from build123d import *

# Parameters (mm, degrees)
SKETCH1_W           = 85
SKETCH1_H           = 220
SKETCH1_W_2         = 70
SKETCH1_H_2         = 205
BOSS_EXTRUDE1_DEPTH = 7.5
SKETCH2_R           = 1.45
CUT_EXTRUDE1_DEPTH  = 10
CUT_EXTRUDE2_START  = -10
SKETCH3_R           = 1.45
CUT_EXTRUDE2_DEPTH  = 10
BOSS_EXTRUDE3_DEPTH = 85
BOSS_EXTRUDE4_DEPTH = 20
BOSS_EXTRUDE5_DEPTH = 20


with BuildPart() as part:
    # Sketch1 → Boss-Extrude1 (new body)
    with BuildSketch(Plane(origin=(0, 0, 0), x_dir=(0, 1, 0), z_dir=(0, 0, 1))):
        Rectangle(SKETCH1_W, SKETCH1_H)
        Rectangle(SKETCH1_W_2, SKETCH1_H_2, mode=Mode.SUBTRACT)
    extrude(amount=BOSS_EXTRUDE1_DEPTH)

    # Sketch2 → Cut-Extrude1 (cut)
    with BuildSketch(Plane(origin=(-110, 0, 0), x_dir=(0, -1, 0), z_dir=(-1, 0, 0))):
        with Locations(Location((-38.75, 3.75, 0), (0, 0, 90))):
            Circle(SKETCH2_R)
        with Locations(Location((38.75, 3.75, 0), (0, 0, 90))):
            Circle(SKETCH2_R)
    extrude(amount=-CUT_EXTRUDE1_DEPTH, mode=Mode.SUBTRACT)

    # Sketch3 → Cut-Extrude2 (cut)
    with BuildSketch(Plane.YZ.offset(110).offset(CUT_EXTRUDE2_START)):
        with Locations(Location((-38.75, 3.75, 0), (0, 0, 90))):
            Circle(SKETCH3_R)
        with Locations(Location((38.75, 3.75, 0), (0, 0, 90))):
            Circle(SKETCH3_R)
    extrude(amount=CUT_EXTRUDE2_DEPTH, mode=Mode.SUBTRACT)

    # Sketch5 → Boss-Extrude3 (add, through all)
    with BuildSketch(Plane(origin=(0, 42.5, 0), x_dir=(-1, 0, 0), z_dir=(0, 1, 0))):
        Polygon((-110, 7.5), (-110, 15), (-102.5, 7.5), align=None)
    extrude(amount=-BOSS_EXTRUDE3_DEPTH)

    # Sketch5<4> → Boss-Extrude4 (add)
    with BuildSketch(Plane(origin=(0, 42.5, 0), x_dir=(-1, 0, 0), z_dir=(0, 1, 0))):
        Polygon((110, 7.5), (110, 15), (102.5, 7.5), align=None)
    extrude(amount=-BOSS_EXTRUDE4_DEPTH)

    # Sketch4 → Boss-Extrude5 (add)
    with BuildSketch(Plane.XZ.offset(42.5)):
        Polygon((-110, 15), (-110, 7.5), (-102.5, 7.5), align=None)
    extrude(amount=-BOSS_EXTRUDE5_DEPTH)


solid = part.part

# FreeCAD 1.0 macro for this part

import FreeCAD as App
import Part
import Sketcher

V = App.Vector
Q = App.Units.Quantity


def add_polygon(sketch, points):
    """Adds a closed chain of lines whose ends are joined by coincident constraints."""
    first, n = sketch.GeometryCount, len(points)
    for a, b in zip(points, points[1:] + points[:1]):
        sketch.addGeometry(Part.LineSegment(App.Vector(*a, 0), App.Vector(*b, 0)), False)
    for i in range(n):
        sketch.addConstraint(Sketcher.Constraint("Coincident", first + i, 2, first + (i + 1) % n, 1))

doc = App.newDocument("Part")
body = doc.addObject("PartDesign::Body", "Body")

# Sketch on XY plane
sketch1 = doc.addObject("Sketcher::SketchObject", "Sketch")
body.addObject(sketch1)
sketch1.AttachmentSupport = (doc.XY_Plane, [""])
sketch1.MapMode = "FlatFace"
add_polygon(sketch1, [(-110, -42), (110, -42), (110, 42), (-110, 42)])  # lines 0-3
add_polygon(sketch1, [(102, 35), (102, -35), (-102, -35), (-102, 35)])  # lines 4-7
sketch1.addConstraint(Sketcher.Constraint("Horizontal", 0))
sketch1.addConstraint(Sketcher.Constraint("Vertical", 1))
sketch1.addConstraint(Sketcher.Constraint("Horizontal", 2))
sketch1.addConstraint(Sketcher.Constraint("Vertical", 3))
sketch1.addConstraint(Sketcher.Constraint("Vertical", 4))
sketch1.addConstraint(Sketcher.Constraint("Horizontal", 5))
sketch1.addConstraint(Sketcher.Constraint("Vertical", 6))
sketch1.addConstraint(Sketcher.Constraint("Horizontal", 7))
sketch1.addConstraint(Sketcher.Constraint("Symmetric", 0, 2, 2, 2, -1, 1))
sketch1.addConstraint(Sketcher.Constraint("Symmetric", 4, 2, 6, 2, -1, 1))
sketch1.addConstraint(Sketcher.Constraint("DistanceX", 0, 1, 0, 2, Q("220 mm")))
sketch1.addConstraint(Sketcher.Constraint("DistanceX", 5, 2, 5, 1, Q("205 mm")))
sketch1.addConstraint(Sketcher.Constraint("DistanceY", 1, 1, 1, 2, Q("85 mm")))
sketch1.addConstraint(Sketcher.Constraint("DistanceY", 4, 2, 4, 1, Q("70 mm")))
pad1 = doc.addObject("PartDesign::Pad", "Pad")
body.addObject(pad1)
pad1.Profile = sketch1
pad1.Length = 7.5

# Sketch on YZ plane
sketch2 = doc.addObject("Sketcher::SketchObject", "Sketch001")
body.addObject(sketch2)
sketch2.AttachmentSupport = (doc.YZ_Plane, [""])
sketch2.MapMode = "FlatFace"
sketch2.AttachmentOffset = App.Placement(V(0, 0, -110), App.Rotation())
sketch2.addGeometry(Part.Circle(V(38.8, 3.8, 0), V(0, 0, 1), 1.4), False)
sketch2.addGeometry(Part.Circle(V(-38.8, 3.8, 0), V(0, 0, 1), 1.4), False)
sketch2.addConstraint(Sketcher.Constraint("Equal", 0, 1))
sketch2.addConstraint(Sketcher.Constraint("Symmetric", 0, 3, 1, 3, -2))
sketch2.addConstraint(Sketcher.Constraint("Diameter", 0, Q("2.9 mm")))
sketch2.addConstraint(Sketcher.Constraint("DistanceX", 1, 3, 0, 3, Q("77.5 mm")))
sketch2.addConstraint(Sketcher.Constraint("DistanceY", -1, 1, 0, 3, Q("3.75 mm")))
pocket1 = doc.addObject("PartDesign::Pocket", "Pocket")
body.addObject(pocket1)
pocket1.Profile = sketch2
pocket1.Length = 10
pocket1.Reversed = True

# Sketch on YZ plane
sketch3 = doc.addObject("Sketcher::SketchObject", "Sketch002")
body.addObject(sketch3)
sketch3.AttachmentSupport = (doc.YZ_Plane, [""])
sketch3.MapMode = "FlatFace"
sketch3.AttachmentOffset = App.Placement(V(0, 0, 100), App.Rotation())
sketch3.addGeometry(Part.Circle(V(-38.8, 3.8, 0), V(0, 0, 1), 1.4), False)
sketch3.addGeometry(Part.Circle(V(38.8, 3.8, 0), V(0, 0, 1), 1.4), False)
sketch3.addConstraint(Sketcher.Constraint("Equal", 0, 1))
sketch3.addConstraint(Sketcher.Constraint("Symmetric", 0, 3, 1, 3, -2))
sketch3.addConstraint(Sketcher.Constraint("Diameter", 0, Q("2.9 mm")))
sketch3.addConstraint(Sketcher.Constraint("DistanceX", 0, 3, 1, 3, Q("77.5 mm")))
sketch3.addConstraint(Sketcher.Constraint("DistanceY", -1, 1, 0, 3, Q("3.75 mm")))
pocket2 = doc.addObject("PartDesign::Pocket", "Pocket001")
body.addObject(pocket2)
pocket2.Profile = sketch3
pocket2.Length = 10
pocket2.Reversed = True

# Sketch on XZ plane
sketch4 = doc.addObject("Sketcher::SketchObject", "Sketch003")
body.addObject(sketch4)
sketch4.AttachmentSupport = (doc.XZ_Plane, [""])
sketch4.MapMode = "FlatFace"
sketch4.AttachmentOffset = App.Placement(V(0, 0, -42.5), App.Rotation())
add_polygon(sketch4, [(110, 15), (110, 8), (102, 8)])  # lines 0-2
sketch4.addConstraint(Sketcher.Constraint("Vertical", 0))
sketch4.addConstraint(Sketcher.Constraint("Horizontal", 1))
sketch4.addConstraint(Sketcher.Constraint("Equal", 1, 0))
sketch4.addConstraint(Sketcher.Constraint("DistanceX", 1, 2, 1, 1, Q("7.5 mm")))
sketch4.addConstraint(Sketcher.Constraint("DistanceX", -1, 1, 0, 2, Q("110 mm")))
sketch4.addConstraint(Sketcher.Constraint("DistanceY", -1, 1, 2, 2, Q("15 mm")))
pad2 = doc.addObject("PartDesign::Pad", "Pad001")
body.addObject(pad2)
pad2.Profile = sketch4
pad2.Length = 85

# Sketch on XZ plane
sketch5 = doc.addObject("Sketcher::SketchObject", "Sketch004")
body.addObject(sketch5)
sketch5.AttachmentSupport = (doc.XZ_Plane, [""])
sketch5.MapMode = "FlatFace"
sketch5.AttachmentOffset = App.Placement(V(0, 0, -42.5), App.Rotation())
add_polygon(sketch5, [(-110, 8), (-110, 15), (-102, 8)])  # lines 0-2
sketch5.addConstraint(Sketcher.Constraint("Vertical", 0))
sketch5.addConstraint(Sketcher.Constraint("Horizontal", 2))
sketch5.addConstraint(Sketcher.Constraint("Equal", 2, 0))
sketch5.addConstraint(Sketcher.Constraint("DistanceX", 2, 2, 2, 1, Q("7.5 mm")))
sketch5.addConstraint(Sketcher.Constraint("DistanceX", 0, 2, -1, 1, Q("110 mm")))
sketch5.addConstraint(Sketcher.Constraint("DistanceY", -1, 1, 0, 2, Q("15 mm")))
pad3 = doc.addObject("PartDesign::Pad", "Pad002")
body.addObject(pad3)
pad3.Profile = sketch5
pad3.Length = 20

# Sketch on XZ plane
sketch6 = doc.addObject("Sketcher::SketchObject", "Sketch005")
body.addObject(sketch6)
sketch6.AttachmentSupport = (doc.XZ_Plane, [""])
sketch6.MapMode = "FlatFace"
sketch6.AttachmentOffset = App.Placement(V(0, 0, 42.5), App.Rotation())
add_polygon(sketch6, [(-110, 15), (-110, 8), (-102, 8)])  # lines 0-2
sketch6.addConstraint(Sketcher.Constraint("Vertical", 0))
sketch6.addConstraint(Sketcher.Constraint("Horizontal", 1))
sketch6.addConstraint(Sketcher.Constraint("Equal", 1, 0))
sketch6.addConstraint(Sketcher.Constraint("DistanceX", 1, 1, 1, 2, Q("7.5 mm")))
sketch6.addConstraint(Sketcher.Constraint("DistanceX", 0, 2, -1, 1, Q("110 mm")))
sketch6.addConstraint(Sketcher.Constraint("DistanceY", -1, 1, 2, 2, Q("15 mm")))
pad4 = doc.addObject("PartDesign::Pad", "Pad003")
body.addObject(pad4)
pad4.Profile = sketch6
pad4.Length = 20
pad4.Reversed = True

doc.recompute()
